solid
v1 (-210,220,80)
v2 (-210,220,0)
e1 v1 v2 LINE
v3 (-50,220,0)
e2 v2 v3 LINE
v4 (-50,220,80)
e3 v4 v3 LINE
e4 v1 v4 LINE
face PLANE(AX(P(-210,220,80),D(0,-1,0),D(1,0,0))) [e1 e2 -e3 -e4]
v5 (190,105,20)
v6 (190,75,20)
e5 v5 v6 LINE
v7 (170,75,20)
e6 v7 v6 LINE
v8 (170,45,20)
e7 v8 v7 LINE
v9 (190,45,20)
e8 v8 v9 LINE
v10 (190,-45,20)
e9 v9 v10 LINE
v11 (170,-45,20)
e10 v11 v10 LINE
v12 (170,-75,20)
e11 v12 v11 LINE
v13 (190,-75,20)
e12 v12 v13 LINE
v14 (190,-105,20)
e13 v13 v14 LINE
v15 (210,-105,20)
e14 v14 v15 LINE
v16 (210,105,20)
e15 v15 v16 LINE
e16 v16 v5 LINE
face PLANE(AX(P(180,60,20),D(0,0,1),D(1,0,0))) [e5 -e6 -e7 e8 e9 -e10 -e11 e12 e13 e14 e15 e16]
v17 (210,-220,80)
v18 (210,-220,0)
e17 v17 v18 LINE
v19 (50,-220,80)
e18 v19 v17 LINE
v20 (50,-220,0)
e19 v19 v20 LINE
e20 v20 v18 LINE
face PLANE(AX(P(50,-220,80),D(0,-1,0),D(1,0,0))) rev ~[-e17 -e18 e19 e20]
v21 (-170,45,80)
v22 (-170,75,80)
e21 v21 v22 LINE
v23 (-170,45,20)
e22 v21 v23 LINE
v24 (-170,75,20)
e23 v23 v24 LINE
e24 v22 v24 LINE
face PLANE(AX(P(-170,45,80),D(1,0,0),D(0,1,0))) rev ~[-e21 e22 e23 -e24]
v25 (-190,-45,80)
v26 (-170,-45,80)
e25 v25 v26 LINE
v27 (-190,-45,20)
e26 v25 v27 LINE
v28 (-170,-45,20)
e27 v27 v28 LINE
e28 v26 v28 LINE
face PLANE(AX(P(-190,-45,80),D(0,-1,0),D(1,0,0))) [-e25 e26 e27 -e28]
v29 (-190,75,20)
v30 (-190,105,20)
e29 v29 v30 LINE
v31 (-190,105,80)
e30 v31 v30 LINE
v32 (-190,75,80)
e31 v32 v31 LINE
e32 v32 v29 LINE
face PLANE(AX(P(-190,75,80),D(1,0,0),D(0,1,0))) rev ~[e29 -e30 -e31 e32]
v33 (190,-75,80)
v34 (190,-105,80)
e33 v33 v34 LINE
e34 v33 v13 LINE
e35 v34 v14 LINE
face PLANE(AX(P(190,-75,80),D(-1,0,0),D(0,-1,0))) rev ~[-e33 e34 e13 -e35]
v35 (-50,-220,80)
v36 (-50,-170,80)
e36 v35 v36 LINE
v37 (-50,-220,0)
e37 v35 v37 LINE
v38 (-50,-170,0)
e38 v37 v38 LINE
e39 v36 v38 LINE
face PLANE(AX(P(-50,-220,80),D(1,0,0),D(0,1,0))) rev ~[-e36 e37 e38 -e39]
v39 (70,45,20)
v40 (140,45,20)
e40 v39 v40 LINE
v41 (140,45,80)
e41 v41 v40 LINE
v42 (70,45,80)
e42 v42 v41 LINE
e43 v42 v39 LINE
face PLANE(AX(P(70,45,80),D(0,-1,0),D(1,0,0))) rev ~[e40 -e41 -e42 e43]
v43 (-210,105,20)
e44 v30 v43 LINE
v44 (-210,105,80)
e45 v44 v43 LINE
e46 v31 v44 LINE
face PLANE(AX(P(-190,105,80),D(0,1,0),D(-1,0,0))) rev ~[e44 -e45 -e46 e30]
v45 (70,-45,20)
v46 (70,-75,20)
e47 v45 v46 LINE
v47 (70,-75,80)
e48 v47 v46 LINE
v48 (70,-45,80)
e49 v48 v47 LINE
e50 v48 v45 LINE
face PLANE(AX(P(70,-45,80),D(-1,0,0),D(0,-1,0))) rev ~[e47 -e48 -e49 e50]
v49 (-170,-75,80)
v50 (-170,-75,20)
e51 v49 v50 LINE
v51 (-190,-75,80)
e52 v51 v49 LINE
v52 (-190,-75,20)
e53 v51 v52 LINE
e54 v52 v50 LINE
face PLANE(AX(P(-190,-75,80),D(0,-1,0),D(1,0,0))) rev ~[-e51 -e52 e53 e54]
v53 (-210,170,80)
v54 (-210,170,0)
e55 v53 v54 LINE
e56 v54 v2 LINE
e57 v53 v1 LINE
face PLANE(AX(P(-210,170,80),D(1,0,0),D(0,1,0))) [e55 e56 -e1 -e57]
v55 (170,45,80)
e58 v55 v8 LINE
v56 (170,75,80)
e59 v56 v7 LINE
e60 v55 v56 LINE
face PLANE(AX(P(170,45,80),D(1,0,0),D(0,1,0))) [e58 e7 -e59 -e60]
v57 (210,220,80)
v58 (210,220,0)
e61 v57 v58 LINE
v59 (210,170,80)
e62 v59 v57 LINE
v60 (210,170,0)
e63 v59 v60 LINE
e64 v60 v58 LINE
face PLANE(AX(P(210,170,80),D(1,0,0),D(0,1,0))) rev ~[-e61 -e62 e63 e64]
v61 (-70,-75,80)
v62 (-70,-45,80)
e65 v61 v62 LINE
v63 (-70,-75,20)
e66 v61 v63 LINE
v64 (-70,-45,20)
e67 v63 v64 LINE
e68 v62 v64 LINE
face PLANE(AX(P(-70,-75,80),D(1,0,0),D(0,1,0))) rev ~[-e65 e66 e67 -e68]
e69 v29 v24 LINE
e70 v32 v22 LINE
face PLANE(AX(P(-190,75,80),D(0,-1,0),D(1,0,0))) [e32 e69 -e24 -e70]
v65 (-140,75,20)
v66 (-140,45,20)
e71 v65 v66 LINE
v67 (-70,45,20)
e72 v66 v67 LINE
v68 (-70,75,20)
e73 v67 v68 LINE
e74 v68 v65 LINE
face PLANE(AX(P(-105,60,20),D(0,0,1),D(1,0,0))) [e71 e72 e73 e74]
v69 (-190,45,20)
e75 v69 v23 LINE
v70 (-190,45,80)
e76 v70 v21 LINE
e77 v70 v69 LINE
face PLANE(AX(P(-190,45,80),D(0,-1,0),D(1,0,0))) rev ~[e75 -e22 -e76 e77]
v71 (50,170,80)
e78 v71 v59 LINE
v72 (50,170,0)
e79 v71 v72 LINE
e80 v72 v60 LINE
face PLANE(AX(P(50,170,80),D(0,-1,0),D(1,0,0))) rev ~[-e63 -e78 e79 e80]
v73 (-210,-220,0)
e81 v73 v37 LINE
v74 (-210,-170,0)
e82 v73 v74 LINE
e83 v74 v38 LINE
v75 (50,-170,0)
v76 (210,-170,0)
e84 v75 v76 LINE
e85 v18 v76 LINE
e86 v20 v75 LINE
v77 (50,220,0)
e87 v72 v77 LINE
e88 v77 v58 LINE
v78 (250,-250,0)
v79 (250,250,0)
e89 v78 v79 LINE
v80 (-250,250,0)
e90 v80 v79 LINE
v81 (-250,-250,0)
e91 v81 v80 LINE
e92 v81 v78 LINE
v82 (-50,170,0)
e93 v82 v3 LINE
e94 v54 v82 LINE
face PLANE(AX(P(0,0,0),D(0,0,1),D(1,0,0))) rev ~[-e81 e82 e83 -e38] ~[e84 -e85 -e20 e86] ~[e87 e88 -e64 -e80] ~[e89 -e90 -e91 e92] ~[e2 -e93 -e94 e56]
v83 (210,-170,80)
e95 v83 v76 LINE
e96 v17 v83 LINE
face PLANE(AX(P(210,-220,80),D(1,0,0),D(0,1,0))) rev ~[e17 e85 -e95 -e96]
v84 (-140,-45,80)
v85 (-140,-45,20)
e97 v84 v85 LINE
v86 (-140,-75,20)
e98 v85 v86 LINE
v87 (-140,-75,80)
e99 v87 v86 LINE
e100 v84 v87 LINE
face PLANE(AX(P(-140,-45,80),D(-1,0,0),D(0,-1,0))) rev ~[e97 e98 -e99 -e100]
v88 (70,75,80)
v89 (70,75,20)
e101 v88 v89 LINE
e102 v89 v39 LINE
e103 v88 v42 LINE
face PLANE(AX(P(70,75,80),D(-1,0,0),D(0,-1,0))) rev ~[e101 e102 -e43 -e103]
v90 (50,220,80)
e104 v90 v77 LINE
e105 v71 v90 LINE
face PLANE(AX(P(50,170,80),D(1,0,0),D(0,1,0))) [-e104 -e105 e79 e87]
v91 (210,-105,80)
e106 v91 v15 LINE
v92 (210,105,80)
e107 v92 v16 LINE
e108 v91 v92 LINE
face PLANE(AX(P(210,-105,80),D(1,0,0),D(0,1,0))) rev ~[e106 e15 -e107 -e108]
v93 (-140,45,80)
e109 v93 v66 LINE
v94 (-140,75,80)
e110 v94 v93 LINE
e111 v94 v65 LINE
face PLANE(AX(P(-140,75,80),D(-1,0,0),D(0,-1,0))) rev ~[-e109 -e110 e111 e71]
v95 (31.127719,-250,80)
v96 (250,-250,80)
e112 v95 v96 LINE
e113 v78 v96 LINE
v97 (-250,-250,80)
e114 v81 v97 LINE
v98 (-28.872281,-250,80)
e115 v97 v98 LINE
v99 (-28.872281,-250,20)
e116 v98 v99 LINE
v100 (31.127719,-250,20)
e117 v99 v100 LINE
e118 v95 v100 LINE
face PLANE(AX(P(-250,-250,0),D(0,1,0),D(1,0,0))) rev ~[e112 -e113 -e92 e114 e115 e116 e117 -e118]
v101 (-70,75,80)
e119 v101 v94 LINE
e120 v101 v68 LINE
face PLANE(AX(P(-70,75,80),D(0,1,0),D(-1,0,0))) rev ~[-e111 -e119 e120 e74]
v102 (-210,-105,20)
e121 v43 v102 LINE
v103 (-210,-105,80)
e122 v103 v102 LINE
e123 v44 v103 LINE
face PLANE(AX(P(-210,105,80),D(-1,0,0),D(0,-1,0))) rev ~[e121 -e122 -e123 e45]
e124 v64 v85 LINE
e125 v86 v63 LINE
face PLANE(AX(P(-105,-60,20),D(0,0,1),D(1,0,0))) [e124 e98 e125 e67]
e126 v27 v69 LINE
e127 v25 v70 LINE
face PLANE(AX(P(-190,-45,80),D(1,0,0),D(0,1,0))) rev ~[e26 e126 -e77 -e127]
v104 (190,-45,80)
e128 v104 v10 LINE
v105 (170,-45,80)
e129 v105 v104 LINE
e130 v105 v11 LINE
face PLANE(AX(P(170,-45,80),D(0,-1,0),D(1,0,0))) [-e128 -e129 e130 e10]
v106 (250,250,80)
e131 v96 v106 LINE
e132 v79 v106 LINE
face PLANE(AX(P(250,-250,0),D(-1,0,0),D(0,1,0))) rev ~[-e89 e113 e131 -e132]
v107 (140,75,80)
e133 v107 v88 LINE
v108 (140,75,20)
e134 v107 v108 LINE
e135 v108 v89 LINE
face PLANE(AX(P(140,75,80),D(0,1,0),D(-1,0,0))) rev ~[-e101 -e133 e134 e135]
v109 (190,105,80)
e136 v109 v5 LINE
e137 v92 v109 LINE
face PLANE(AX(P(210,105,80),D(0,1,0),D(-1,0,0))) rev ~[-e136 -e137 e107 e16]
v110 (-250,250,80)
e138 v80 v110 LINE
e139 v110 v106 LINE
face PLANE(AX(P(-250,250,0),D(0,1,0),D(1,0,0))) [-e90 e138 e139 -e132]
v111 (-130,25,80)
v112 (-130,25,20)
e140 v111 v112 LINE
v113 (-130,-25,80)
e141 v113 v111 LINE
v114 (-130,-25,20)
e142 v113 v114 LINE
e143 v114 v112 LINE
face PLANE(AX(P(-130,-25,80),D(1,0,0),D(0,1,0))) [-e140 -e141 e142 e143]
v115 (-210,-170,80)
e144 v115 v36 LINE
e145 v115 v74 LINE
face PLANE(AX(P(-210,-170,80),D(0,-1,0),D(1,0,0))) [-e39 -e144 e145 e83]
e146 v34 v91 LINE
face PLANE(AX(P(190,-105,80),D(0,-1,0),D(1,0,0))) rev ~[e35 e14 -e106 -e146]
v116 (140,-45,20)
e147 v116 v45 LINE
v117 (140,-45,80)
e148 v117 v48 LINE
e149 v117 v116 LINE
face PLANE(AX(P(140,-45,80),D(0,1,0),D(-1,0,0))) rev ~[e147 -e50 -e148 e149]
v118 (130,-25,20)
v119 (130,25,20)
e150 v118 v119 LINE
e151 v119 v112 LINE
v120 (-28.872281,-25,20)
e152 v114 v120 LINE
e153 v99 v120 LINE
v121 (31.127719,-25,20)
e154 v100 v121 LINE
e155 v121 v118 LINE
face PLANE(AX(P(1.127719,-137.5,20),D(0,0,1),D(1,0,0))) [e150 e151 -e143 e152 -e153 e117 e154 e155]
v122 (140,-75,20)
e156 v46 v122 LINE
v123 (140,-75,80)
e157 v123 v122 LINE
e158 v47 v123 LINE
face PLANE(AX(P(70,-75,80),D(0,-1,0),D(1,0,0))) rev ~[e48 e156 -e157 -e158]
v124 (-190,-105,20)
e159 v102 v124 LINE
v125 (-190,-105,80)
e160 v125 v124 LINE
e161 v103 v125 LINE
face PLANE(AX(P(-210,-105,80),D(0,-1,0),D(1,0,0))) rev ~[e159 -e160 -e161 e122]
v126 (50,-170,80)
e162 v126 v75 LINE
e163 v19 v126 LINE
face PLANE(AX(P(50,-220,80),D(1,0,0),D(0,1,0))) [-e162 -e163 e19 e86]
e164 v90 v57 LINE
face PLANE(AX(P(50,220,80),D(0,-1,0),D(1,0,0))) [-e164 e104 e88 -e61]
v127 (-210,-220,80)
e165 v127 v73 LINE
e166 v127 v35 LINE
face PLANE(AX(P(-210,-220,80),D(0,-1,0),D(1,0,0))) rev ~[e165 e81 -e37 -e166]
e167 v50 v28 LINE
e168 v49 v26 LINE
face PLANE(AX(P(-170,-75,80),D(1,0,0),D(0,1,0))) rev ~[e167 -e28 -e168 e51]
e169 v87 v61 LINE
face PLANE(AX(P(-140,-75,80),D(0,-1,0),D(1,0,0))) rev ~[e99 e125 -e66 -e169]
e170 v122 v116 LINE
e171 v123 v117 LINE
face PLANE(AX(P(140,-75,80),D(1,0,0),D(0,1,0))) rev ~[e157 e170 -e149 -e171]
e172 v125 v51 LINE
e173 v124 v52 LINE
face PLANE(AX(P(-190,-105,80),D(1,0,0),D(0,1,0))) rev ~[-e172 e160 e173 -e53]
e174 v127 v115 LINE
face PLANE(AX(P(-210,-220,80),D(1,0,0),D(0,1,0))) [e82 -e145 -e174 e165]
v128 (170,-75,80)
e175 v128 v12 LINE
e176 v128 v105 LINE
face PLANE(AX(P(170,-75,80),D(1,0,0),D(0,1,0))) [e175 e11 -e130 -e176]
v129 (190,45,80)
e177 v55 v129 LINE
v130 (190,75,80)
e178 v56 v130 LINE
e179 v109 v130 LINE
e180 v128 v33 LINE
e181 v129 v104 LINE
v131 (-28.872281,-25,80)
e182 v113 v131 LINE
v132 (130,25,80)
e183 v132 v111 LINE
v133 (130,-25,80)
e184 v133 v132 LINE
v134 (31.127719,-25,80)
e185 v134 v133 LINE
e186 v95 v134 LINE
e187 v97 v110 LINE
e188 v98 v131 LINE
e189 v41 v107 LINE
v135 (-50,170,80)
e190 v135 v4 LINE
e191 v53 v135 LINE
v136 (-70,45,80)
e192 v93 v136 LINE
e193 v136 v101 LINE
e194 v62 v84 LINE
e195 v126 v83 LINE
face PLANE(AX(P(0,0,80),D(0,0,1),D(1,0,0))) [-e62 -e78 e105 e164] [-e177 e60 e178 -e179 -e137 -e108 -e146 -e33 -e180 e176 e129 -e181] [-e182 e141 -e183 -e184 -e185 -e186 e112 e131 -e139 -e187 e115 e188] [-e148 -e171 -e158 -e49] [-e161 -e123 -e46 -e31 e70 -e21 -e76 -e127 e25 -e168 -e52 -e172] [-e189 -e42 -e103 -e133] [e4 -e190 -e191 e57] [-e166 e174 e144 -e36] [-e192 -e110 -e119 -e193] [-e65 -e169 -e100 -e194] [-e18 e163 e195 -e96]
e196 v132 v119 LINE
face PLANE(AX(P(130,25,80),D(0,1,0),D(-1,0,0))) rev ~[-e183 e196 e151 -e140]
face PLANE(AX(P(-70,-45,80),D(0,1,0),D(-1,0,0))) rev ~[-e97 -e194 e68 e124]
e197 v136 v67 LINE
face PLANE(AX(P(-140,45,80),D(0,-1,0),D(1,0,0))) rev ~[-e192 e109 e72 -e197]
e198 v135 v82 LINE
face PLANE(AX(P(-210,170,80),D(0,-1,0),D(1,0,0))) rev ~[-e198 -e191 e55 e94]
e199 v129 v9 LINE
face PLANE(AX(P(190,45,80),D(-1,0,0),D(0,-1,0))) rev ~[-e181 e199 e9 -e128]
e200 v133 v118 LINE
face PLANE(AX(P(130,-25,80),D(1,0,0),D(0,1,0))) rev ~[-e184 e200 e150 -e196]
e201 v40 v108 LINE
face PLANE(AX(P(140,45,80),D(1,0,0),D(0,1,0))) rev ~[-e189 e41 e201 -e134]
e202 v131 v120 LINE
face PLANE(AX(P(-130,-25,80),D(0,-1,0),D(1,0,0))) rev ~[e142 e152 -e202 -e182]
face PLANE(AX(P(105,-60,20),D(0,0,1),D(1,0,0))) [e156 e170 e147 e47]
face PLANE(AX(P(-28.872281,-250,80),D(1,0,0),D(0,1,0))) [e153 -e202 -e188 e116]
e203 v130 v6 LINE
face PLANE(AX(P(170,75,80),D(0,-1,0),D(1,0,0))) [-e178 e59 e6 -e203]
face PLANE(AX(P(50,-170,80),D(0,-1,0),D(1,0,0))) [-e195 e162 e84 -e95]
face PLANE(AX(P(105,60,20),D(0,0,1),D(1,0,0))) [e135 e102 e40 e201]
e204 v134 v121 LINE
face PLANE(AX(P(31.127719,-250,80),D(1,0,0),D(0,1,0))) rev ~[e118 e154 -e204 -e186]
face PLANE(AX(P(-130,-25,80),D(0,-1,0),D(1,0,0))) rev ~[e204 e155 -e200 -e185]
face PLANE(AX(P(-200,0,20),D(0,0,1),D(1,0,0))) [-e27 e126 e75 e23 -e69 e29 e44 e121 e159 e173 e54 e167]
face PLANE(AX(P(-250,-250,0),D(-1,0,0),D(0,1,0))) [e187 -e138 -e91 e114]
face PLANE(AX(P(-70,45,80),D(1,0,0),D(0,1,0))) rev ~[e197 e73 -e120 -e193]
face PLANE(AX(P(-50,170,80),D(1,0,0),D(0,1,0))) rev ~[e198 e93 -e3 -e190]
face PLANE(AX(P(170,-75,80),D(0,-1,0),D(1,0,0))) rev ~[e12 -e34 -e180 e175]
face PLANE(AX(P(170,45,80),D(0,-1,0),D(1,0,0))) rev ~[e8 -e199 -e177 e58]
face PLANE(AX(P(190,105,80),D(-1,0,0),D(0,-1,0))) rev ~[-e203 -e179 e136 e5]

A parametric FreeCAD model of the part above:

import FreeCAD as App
import Part
import Sketcher

V = App.Vector
Q = App.Units.Quantity


def add_polygon(sketch, points):
    """Adds a closed chain of lines whose ends are joined by coincident constraints."""
    first, n = sketch.GeometryCount, len(points)
    for a, b in zip(points, points[1:] + points[:1]):
        sketch.addGeometry(Part.LineSegment(App.Vector(*a, 0), App.Vector(*b, 0)), False)
    for i in range(n):
        sketch.addConstraint(Sketcher.Constraint("Coincident", first + i, 2, first + (i + 1) % n, 1))

doc = App.newDocument("Part")
body = doc.addObject("PartDesign::Body", "Body")

# Sketch on XY plane
sketch1 = body.newObject("Sketcher::SketchObject", "Sketch")
sketch1.AttachmentSupport = (doc.getObject("XY_Plane"), [""])
sketch1.MapMode = "FlatFace"
add_polygon(sketch1, [(-250, 250), (-250, -250), (250, -250), (250, 250)])  # lines 0-3
sketch1.addConstraint(Sketcher.Constraint("Vertical", 0))
sketch1.addConstraint(Sketcher.Constraint("Horizontal", 1))
sketch1.addConstraint(Sketcher.Constraint("Vertical", 2))
sketch1.addConstraint(Sketcher.Constraint("Horizontal", 3))
sketch1.addConstraint(Sketcher.Constraint("Symmetric", 0, 2, 2, 2, -1, 1))
sketch1.addConstraint(Sketcher.Constraint("Equal", 3, 0))
sketch1.addConstraint(Sketcher.Constraint("DistanceX", 1, 1, 1, 2, Q("500 mm")))
pad1 = body.newObject("PartDesign::Pad", "Pad")
pad1.Profile = sketch1
pad1.Length = 80

# Sketch on XY plane
sketch2 = body.newObject("Sketcher::SketchObject", "Sketch001")
sketch2.AttachmentSupport = (doc.getObject("XY_Plane"), [""])
sketch2.MapMode = "FlatFace"
sketch2.AttachmentOffset = App.Placement(V(0, 0, 80), App.Rotation())
add_polygon(sketch2, [(-190, 105), (-210, 105), (-210, -105), (-190, -105), (-190, -75), (-170, -75), (-170, -45), (-190, -45), (-190, 45), (-170, 45), (-170, 75), (-190, 75)])  # lines 0-11
add_polygon(sketch2, [(-70, 75), (-140, 75), (-140, 45), (-70, 45)])  # lines 12-15
add_polygon(sketch2, [(-140, -45), (-140, -75), (-70, -75), (-70, -45)])  # lines 16-19
add_polygon(sketch2, [(140, 45), (140, 75), (70, 75), (70, 45)])  # lines 20-23
add_polygon(sketch2, [(70, -75), (140, -75), (140, -45), (70, -45)])  # lines 24-27
add_polygon(sketch2, [(170, 75), (170, 45), (190, 45), (190, -45), (170, -45), (170, -75), (190, -75), (190, -105), (210, -105), (210, 105), (190, 105), (190, 75)])  # lines 28-39
add_polygon(sketch2, [(-130, 25), (-130, -25), (130, -25), (130, 25)])  # lines 40-43
sketch2.addConstraint(Sketcher.Constraint("Horizontal", 0))
sketch2.addConstraint(Sketcher.Constraint("Vertical", 1))
sketch2.addConstraint(Sketcher.Constraint("Horizontal", 2))
sketch2.addConstraint(Sketcher.Constraint("Vertical", 3))
sketch2.addConstraint(Sketcher.Constraint("Horizontal", 4))
sketch2.addConstraint(Sketcher.Constraint("Vertical", 5))
sketch2.addConstraint(Sketcher.Constraint("Horizontal", 6))
sketch2.addConstraint(Sketcher.Constraint("Vertical", 7))
sketch2.addConstraint(Sketcher.Constraint("Horizontal", 8))
sketch2.addConstraint(Sketcher.Constraint("Vertical", 9))
sketch2.addConstraint(Sketcher.Constraint("Horizontal", 10))
sketch2.addConstraint(Sketcher.Constraint("Vertical", 11))
sketch2.addConstraint(Sketcher.Constraint("Horizontal", 12))
sketch2.addConstraint(Sketcher.Constraint("Vertical", 13))
sketch2.addConstraint(Sketcher.Constraint("Horizontal", 14))
sketch2.addConstraint(Sketcher.Constraint("Vertical", 15))
sketch2.addConstraint(Sketcher.Constraint("Vertical", 16))
sketch2.addConstraint(Sketcher.Constraint("Horizontal", 17))
sketch2.addConstraint(Sketcher.Constraint("Vertical", 18))
sketch2.addConstraint(Sketcher.Constraint("Horizontal", 19))
sketch2.addConstraint(Sketcher.Constraint("Vertical", 20))
sketch2.addConstraint(Sketcher.Constraint("Horizontal", 21))
sketch2.addConstraint(Sketcher.Constraint("Vertical", 22))
sketch2.addConstraint(Sketcher.Constraint("Horizontal", 23))
sketch2.addConstraint(Sketcher.Constraint("Horizontal", 24))
sketch2.addConstraint(Sketcher.Constraint("Vertical", 25))
sketch2.addConstraint(Sketcher.Constraint("Horizontal", 26))
sketch2.addConstraint(Sketcher.Constraint("Vertical", 27))
sketch2.addConstraint(Sketcher.Constraint("Vertical", 28))
sketch2.addConstraint(Sketcher.Constraint("Horizontal", 29))
sketch2.addConstraint(Sketcher.Constraint("Vertical", 30))
sketch2.addConstraint(Sketcher.Constraint("Horizontal", 31))
sketch2.addConstraint(Sketcher.Constraint("Vertical", 32))
sketch2.addConstraint(Sketcher.Constraint("Horizontal", 33))
sketch2.addConstraint(Sketcher.Constraint("Vertical", 34))
sketch2.addConstraint(Sketcher.Constraint("Horizontal", 35))
sketch2.addConstraint(Sketcher.Constraint("Vertical", 36))
sketch2.addConstraint(Sketcher.Constraint("Horizontal", 37))
sketch2.addConstraint(Sketcher.Constraint("Vertical", 38))
sketch2.addConstraint(Sketcher.Constraint("Horizontal", 39))
sketch2.addConstraint(Sketcher.Constraint("Vertical", 40))
sketch2.addConstraint(Sketcher.Constraint("Horizontal", 41))
sketch2.addConstraint(Sketcher.Constraint("Vertical", 42))
sketch2.addConstraint(Sketcher.Constraint("Horizontal", 43))
sketch2.addConstraint(Sketcher.Constraint("Symmetric", 16, 2, 20, 2, -1, 1))
sketch2.addConstraint(Sketcher.Constraint("Symmetric", 18, 2, 22, 2, -1, 1))
sketch2.addConstraint(Sketcher.Constraint("Symmetric", 12, 2, 24, 2, -1, 1))
sketch2.addConstraint(Sketcher.Constraint("Symmetric", 14, 2, 26, 2, -1, 1))
sketch2.addConstraint(Sketcher.Constraint("Symmetric", 5, 2, 28, 2, -1, 1))
sketch2.addConstraint(Sketcher.Constraint("Symmetric", 7, 2, 30, 2, -1, 1))
sketch2.addConstraint(Sketcher.Constraint("Symmetric", 9, 2, 32, 2, -1, 1))
sketch2.addConstraint(Sketcher.Constraint("Symmetric", 11, 2, 34, 2, -1, 1))
sketch2.addConstraint(Sketcher.Constraint("Symmetric", 1, 2, 36, 2, -1, 1))
sketch2.addConstraint(Sketcher.Constraint("Symmetric", 3, 2, 38, 2, -1, 1))
sketch2.addConstraint(Sketcher.Constraint("Symmetric", 40, 2, 42, 2, -1, 1))
sketch2.addConstraint(Sketcher.Constraint("Symmetric", 12, 2, 20, 2, -2))
sketch2.addConstraint(Sketcher.Constraint("Symmetric", 14, 2, 22, 2, -2))
sketch2.addConstraint(Sketcher.Constraint("Symmetric", 8, 2, 28, 2, -2))
sketch2.addConstraint(Sketcher.Constraint("Symmetric", 3, 2, 33, 2, -2))
sketch2.addConstraint(Sketcher.Constraint("Horizontal", 10, 2, 12, 2))
sketch2.addConstraint(Sketcher.Constraint("Horizontal", 8, 2, 13, 2))
sketch2.addConstraint(Sketcher.Constraint("Horizontal", 2, 2, 34, 2))
sketch2.addConstraint(Sketcher.Constraint("Vertical", 3, 2, 6, 2))
sketch2.addConstraint(Sketcher.Constraint("Equal", 2, 4))
sketch2.addConstraint(Sketcher.Constraint("Equal", 3, 5))
sketch2.addConstraint(Sketcher.Constraint("DistanceX", 0, 2, 0, 1, Q("20 mm")))
sketch2.addConstraint(Sketcher.Constraint("DistanceX", 12, 2, 12, 1, Q("70 mm")))
sketch2.addConstraint(Sketcher.Constraint("DistanceX", 41, 1, 41, 2, Q("260 mm")))
sketch2.addConstraint(Sketcher.Constraint("DistanceY", 1, 2, 1, 1, Q("210 mm")))
sketch2.addConstraint(Sketcher.Constraint("DistanceY", 3, 1, 3, 2, Q("30 mm")))
sketch2.addConstraint(Sketcher.Constraint("DistanceY", 40, 2, 40, 1, Q("50 mm")))
sketch2.addConstraint(Sketcher.Constraint("DistanceX", 0, 2, -1, 1, Q("210 mm")))
sketch2.addConstraint(Sketcher.Constraint("DistanceX", 12, 2, -1, 1, Q("140 mm")))
pocket1 = body.newObject("PartDesign::Pocket", "Pocket")
pocket1.Profile = sketch2
pocket1.Length = 60

# Sketch on XY plane
sketch3 = body.newObject("Sketcher::SketchObject", "Sketch002")
sketch3.AttachmentSupport = (doc.getObject("XY_Plane"), [""])
sketch3.MapMode = "FlatFace"
sketch3.AttachmentOffset = App.Placement(V(0, 0, 80), App.Rotation())
add_polygon(sketch3, [(-210, 220), (-210, 170), (-50, 170), (-50, 220)])  # lines 0-3
add_polygon(sketch3, [(50, 220), (50, 170), (210, 170), (210, 220)])  # lines 4-7
add_polygon(sketch3, [(50, -170), (50, -220), (210, -220), (210, -170)])  # lines 8-11
add_polygon(sketch3, [(-210, -170), (-210, -220), (-50, -220), (-50, -170)])  # lines 12-15
sketch3.addConstraint(Sketcher.Constraint("Vertical", 0))
sketch3.addConstraint(Sketcher.Constraint("Horizontal", 1))
sketch3.addConstraint(Sketcher.Constraint("Vertical", 2))
sketch3.addConstraint(Sketcher.Constraint("Horizontal", 3))
sketch3.addConstraint(Sketcher.Constraint("Vertical", 4))
sketch3.addConstraint(Sketcher.Constraint("Horizontal", 5))
sketch3.addConstraint(Sketcher.Constraint("Vertical", 6))
sketch3.addConstraint(Sketcher.Constraint("Horizontal", 7))
sketch3.addConstraint(Sketcher.Constraint("Vertical", 8))
sketch3.addConstraint(Sketcher.Constraint("Horizontal", 9))
sketch3.addConstraint(Sketcher.Constraint("Vertical", 10))
sketch3.addConstraint(Sketcher.Constraint("Horizontal", 11))
sketch3.addConstraint(Sketcher.Constraint("Vertical", 12))
sketch3.addConstraint(Sketcher.Constraint("Horizontal", 13))
sketch3.addConstraint(Sketcher.Constraint("Vertical", 14))
sketch3.addConstraint(Sketcher.Constraint("Horizontal", 15))
sketch3.addConstraint(Sketcher.Constraint("Symmetric", 2, 2, 8, 2, -1, 1))
sketch3.addConstraint(Sketcher.Constraint("Symmetric", 0, 2, 10, 2, -1, 1))
sketch3.addConstraint(Sketcher.Constraint("Symmetric", 6, 2, 12, 2, -1, 1))
sketch3.addConstraint(Sketcher.Constraint("Symmetric", 4, 2, 14, 2, -1, 1))
sketch3.addConstraint(Sketcher.Constraint("Symmetric", 1, 2, 4, 2, -2))
sketch3.addConstraint(Sketcher.Constraint("Symmetric", 3, 2, 6, 2, -2))
sketch3.addConstraint(Sketcher.Constraint("DistanceX", 1, 1, 1, 2, Q("160 mm")))
sketch3.addConstraint(Sketcher.Constraint("DistanceY", 0, 2, 0, 1, Q("50 mm")))
sketch3.addConstraint(Sketcher.Constraint("DistanceX", 0, 2, -1, 1, Q("210 mm")))
sketch3.addConstraint(Sketcher.Constraint("DistanceY", -1, 1, 0, 2, Q("170 mm")))
pocket2 = body.newObject("PartDesign::Pocket", "Pocket001")
pocket2.Profile = sketch3
pocket2.Length = 190

# Sketch on XY plane
sketch4 = body.newObject("Sketcher::SketchObject", "Sketch003")
sketch4.AttachmentSupport = (doc.getObject("XY_Plane"), [""])
sketch4.MapMode = "FlatFace"
sketch4.AttachmentOffset = App.Placement(V(0, 0, 80), App.Rotation())
add_polygon(sketch4, [(-28.872281, -25), (-28.872281, -250), (31.127719, -250), (31.127719, -25)])  # lines 0-3
sketch4.addConstraint(Sketcher.Constraint("Vertical", 0))
sketch4.addConstraint(Sketcher.Constraint("Horizontal", 1))
sketch4.addConstraint(Sketcher.Constraint("Vertical", 2))
sketch4.addConstraint(Sketcher.Constraint("Horizontal", 3))
sketch4.addConstraint(Sketcher.Constraint("DistanceX", 1, 1, 1, 2, Q("60 mm")))
sketch4.addConstraint(Sketcher.Constraint("DistanceY", 0, 2, 0, 1, Q("225 mm")))
sketch4.addConstraint(Sketcher.Constraint("DistanceY", 0, 2, -1, 1, Q("250 mm")))
sketch4.addConstraint(Sketcher.Constraint("DistanceX", 0, 2, -1, 1, Q("28.872281 mm")))
pocket3 = body.newObject("PartDesign::Pocket", "Pocket002")
pocket3.Profile = sketch4
pocket3.Length = 60

doc.recompute()
